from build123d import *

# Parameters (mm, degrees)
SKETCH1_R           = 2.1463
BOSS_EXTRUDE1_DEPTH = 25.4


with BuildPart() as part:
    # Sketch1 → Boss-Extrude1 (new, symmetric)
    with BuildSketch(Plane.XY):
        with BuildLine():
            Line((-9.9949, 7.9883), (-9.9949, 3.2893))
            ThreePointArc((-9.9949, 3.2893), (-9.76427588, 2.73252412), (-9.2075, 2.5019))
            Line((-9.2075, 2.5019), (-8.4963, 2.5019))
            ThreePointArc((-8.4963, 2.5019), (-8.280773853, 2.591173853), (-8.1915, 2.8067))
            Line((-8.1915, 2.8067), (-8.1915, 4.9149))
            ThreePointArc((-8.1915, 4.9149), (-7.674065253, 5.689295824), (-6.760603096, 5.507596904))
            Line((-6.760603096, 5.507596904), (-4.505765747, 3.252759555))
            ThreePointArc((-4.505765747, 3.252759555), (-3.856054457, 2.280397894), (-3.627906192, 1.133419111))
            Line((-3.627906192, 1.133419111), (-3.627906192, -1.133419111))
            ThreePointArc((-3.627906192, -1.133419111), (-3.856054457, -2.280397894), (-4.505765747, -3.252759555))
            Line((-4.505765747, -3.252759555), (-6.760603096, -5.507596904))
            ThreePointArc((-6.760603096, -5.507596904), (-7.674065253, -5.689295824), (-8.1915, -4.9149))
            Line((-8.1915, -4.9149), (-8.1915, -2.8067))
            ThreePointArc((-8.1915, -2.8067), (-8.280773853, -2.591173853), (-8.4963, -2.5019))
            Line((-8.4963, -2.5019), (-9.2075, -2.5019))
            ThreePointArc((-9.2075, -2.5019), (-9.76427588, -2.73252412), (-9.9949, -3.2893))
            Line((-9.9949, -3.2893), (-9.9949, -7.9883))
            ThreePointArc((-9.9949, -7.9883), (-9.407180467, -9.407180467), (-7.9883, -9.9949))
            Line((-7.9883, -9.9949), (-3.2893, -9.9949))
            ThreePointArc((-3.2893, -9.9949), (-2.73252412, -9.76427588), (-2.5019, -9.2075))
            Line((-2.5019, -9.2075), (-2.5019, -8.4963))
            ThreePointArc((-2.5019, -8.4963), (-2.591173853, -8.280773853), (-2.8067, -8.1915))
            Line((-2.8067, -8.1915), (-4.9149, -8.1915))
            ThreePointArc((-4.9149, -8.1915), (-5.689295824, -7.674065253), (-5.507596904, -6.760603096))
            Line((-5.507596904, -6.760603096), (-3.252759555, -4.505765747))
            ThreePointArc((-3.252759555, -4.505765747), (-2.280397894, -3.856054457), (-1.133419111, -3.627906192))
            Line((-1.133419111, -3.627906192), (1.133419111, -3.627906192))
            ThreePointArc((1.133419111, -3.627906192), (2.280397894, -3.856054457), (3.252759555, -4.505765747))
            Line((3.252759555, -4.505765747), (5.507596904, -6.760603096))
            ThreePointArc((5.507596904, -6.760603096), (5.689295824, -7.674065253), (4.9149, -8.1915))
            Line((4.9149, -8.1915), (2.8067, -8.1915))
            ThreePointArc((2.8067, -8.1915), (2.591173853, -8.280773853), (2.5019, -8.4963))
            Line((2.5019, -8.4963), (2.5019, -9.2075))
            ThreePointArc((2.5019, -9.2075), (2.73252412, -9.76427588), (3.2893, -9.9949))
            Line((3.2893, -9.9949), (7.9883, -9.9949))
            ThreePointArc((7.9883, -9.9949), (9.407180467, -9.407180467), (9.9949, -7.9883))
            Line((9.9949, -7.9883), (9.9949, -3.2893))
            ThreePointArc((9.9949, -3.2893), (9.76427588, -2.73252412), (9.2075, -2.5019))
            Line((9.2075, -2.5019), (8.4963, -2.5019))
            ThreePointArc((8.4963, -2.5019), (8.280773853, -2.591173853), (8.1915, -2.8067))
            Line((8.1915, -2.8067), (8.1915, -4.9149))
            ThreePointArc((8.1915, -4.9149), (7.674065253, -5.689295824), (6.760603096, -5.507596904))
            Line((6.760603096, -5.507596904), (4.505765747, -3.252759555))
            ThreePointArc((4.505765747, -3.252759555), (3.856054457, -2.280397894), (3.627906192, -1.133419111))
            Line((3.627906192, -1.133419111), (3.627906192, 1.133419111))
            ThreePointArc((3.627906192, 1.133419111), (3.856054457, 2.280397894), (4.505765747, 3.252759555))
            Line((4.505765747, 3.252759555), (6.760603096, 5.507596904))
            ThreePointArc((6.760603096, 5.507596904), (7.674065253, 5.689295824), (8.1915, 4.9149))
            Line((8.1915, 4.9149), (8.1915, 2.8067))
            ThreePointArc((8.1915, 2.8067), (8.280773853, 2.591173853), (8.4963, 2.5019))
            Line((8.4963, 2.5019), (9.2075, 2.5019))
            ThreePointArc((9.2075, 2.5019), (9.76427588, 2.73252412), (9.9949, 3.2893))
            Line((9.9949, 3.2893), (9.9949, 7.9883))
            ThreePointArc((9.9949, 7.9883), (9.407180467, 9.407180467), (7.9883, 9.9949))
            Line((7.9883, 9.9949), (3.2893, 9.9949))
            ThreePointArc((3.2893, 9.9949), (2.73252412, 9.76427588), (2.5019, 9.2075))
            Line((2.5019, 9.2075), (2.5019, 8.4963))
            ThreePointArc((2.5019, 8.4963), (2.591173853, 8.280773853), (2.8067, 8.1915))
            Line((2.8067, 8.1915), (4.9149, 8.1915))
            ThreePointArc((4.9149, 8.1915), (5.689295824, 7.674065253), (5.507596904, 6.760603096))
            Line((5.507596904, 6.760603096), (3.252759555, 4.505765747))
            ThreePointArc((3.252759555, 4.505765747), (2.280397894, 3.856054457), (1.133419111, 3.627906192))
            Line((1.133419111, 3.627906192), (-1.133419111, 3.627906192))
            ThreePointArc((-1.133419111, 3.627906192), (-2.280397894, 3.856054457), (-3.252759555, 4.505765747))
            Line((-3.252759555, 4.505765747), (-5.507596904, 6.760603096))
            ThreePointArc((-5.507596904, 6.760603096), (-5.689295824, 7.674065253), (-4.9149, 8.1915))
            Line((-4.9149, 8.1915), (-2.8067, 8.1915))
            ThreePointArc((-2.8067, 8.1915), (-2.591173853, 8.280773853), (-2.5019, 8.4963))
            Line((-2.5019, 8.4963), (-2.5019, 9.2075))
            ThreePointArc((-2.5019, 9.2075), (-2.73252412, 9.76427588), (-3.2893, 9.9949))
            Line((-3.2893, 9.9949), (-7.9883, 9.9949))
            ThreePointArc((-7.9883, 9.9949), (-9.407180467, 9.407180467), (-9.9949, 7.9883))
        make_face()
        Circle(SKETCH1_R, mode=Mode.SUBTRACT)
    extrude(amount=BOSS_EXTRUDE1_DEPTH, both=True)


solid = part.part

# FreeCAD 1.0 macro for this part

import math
import FreeCAD as App
import Part
import Sketcher
from FreeCAD import Vector
Q = App.Units.Quantity

doc = App.newDocument("Part")
body = doc.addObject("PartDesign::Body", "Body")

# Sketch on XY plane
sketch1 = body.newObject("Sketcher::SketchObject", "Sketch")
sketch1.AttachmentSupport = (doc.getObject("XY_Plane"), [""])
sketch1.MapMode = "FlatFace"
sketch1.addGeometry([
    Part.LineSegment(Vector(-9.99, 7.99, 0), Vector(-9.99, 3.29, 0)),  # 0
    Part.ArcOfCircle(Part.Circle(Vector(-9.21, 3.29, 0), Vector(0, 0, 1), 0.79), math.radians(180), math.radians(270)),  # 1
    Part.LineSegment(Vector(-9.21, 2.5, 0), Vector(-8.5, 2.5, 0)),  # 2
    Part.ArcOfCircle(Part.Circle(Vector(-8.5, 2.81, 0), Vector(0, 0, 1), 0.3), math.radians(-90), math.radians(0)),  # 3
    Part.LineSegment(Vector(-8.19, 2.81, 0), Vector(-8.19, 4.91, 0)),  # 4
    Part.ArcOfCircle(Part.Circle(Vector(-7.35, 4.91, 0), Vector(0, 0, 1), 0.84), math.radians(45), math.radians(180)),  # 5
    Part.LineSegment(Vector(-6.76, 5.51, 0), Vector(-4.51, 3.25, 0)),  # 6
    Part.ArcOfCircle(Part.Circle(Vector(-6.63, 1.13, 0), Vector(0, 0, 1), 3), math.radians(0), math.radians(45)),  # 7
    Part.LineSegment(Vector(-3.63, 1.13, 0), Vector(-3.63, -1.13, 0)),  # 8
    Part.ArcOfCircle(Part.Circle(Vector(-6.63, -1.13, 0), Vector(0, 0, 1), 3), math.radians(-45), math.radians(0)),  # 9
    Part.LineSegment(Vector(-4.51, -3.25, 0), Vector(-6.76, -5.51, 0)),  # 10
    Part.ArcOfCircle(Part.Circle(Vector(-7.35, -4.91, 0), Vector(0, 0, 1), 0.84), math.radians(180), math.radians(315)),  # 11
    Part.LineSegment(Vector(-8.19, -4.91, 0), Vector(-8.19, -2.81, 0)),  # 12
    Part.ArcOfCircle(Part.Circle(Vector(-8.5, -2.81, 0), Vector(0, 0, 1), 0.3), math.radians(0), math.radians(90)),  # 13
    Part.LineSegment(Vector(-8.5, -2.5, 0), Vector(-9.21, -2.5, 0)),  # 14
    Part.ArcOfCircle(Part.Circle(Vector(-9.21, -3.29, 0), Vector(0, 0, 1), 0.79), math.radians(90), math.radians(180)),  # 15
    Part.LineSegment(Vector(-9.99, -3.29, 0), Vector(-9.99, -7.99, 0)),  # 16
    Part.ArcOfCircle(Part.Circle(Vector(-7.99, -7.99, 0), Vector(0, 0, 1), 2.01), math.radians(180), math.radians(270)),  # 17
    Part.LineSegment(Vector(-7.99, -9.99, 0), Vector(-3.29, -9.99, 0)),  # 18
    Part.ArcOfCircle(Part.Circle(Vector(-3.29, -9.21, 0), Vector(0, 0, 1), 0.79), math.radians(-90), math.radians(0)),  # 19
    Part.LineSegment(Vector(-2.5, -9.21, 0), Vector(-2.5, -8.5, 0)),  # 20
    Part.ArcOfCircle(Part.Circle(Vector(-2.81, -8.5, 0), Vector(0, 0, 1), 0.3), math.radians(0), math.radians(90)),  # 21
    Part.LineSegment(Vector(-2.81, -8.19, 0), Vector(-4.91, -8.19, 0)),  # 22
    Part.ArcOfCircle(Part.Circle(Vector(-4.91, -7.35, 0), Vector(0, 0, 1), 0.84), math.radians(135), math.radians(270)),  # 23
    Part.LineSegment(Vector(-5.51, -6.76, 0), Vector(-3.25, -4.51, 0)),  # 24
    Part.ArcOfCircle(Part.Circle(Vector(-1.13, -6.63, 0), Vector(0, 0, 1), 3), math.radians(90), math.radians(135)),  # 25
    Part.LineSegment(Vector(-1.13, -3.63, 0), Vector(1.13, -3.63, 0)),  # 26
    Part.ArcOfCircle(Part.Circle(Vector(1.13, -6.63, 0), Vector(0, 0, 1), 3), math.radians(45), math.radians(90)),  # 27
    Part.LineSegment(Vector(3.25, -4.51, 0), Vector(5.51, -6.76, 0)),  # 28
    Part.ArcOfCircle(Part.Circle(Vector(4.91, -7.35, 0), Vector(0, 0, 1), 0.84), math.radians(-90), math.radians(45)),  # 29
    Part.LineSegment(Vector(4.91, -8.19, 0), Vector(2.81, -8.19, 0)),  # 30
    Part.ArcOfCircle(Part.Circle(Vector(2.81, -8.5, 0), Vector(0, 0, 1), 0.3), math.radians(90), math.radians(180)),  # 31
    Part.LineSegment(Vector(2.5, -8.5, 0), Vector(2.5, -9.21, 0)),  # 32
    Part.ArcOfCircle(Part.Circle(Vector(3.29, -9.21, 0), Vector(0, 0, 1), 0.79), math.radians(180), math.radians(270)),  # 33
    Part.LineSegment(Vector(3.29, -9.99, 0), Vector(7.99, -9.99, 0)),  # 34
    Part.ArcOfCircle(Part.Circle(Vector(7.99, -7.99, 0), Vector(0, 0, 1), 2.01), math.radians(-90), math.radians(0)),  # 35
    Part.LineSegment(Vector(9.99, -7.99, 0), Vector(9.99, -3.29, 0)),  # 36
    Part.ArcOfCircle(Part.Circle(Vector(9.21, -3.29, 0), Vector(0, 0, 1), 0.79), math.radians(0), math.radians(90)),  # 37
    Part.LineSegment(Vector(9.21, -2.5, 0), Vector(8.5, -2.5, 0)),  # 38
    Part.ArcOfCircle(Part.Circle(Vector(8.5, -2.81, 0), Vector(0, 0, 1), 0.3), math.radians(90), math.radians(180)),  # 39
    Part.LineSegment(Vector(8.19, -2.81, 0), Vector(8.19, -4.91, 0)),  # 40
    Part.ArcOfCircle(Part.Circle(Vector(7.35, -4.91, 0), Vector(0, 0, 1), 0.84), math.radians(-135), math.radians(0)),  # 41
    Part.LineSegment(Vector(6.76, -5.51, 0), Vector(4.51, -3.25, 0)),  # 42
    Part.ArcOfCircle(Part.Circle(Vector(6.63, -1.13, 0), Vector(0, 0, 1), 3), math.radians(180), math.radians(225)),  # 43
    Part.LineSegment(Vector(3.63, -1.13, 0), Vector(3.63, 1.13, 0)),  # 44
    Part.ArcOfCircle(Part.Circle(Vector(6.63, 1.13, 0), Vector(0, 0, 1), 3), math.radians(135), math.radians(180)),  # 45
    Part.LineSegment(Vector(4.51, 3.25, 0), Vector(6.76, 5.51, 0)),  # 46
    Part.ArcOfCircle(Part.Circle(Vector(7.35, 4.91, 0), Vector(0, 0, 1), 0.84), math.radians(0), math.radians(135)),  # 47
    Part.LineSegment(Vector(8.19, 4.91, 0), Vector(8.19, 2.81, 0)),  # 48
    Part.ArcOfCircle(Part.Circle(Vector(8.5, 2.81, 0), Vector(0, 0, 1), 0.3), math.radians(180), math.radians(270)),  # 49
    Part.LineSegment(Vector(8.5, 2.5, 0), Vector(9.21, 2.5, 0)),  # 50
    Part.ArcOfCircle(Part.Circle(Vector(9.21, 3.29, 0), Vector(0, 0, 1), 0.79), math.radians(-90), math.radians(0)),  # 51
    Part.LineSegment(Vector(9.99, 3.29, 0), Vector(9.99, 7.99, 0)),  # 52
    Part.ArcOfCircle(Part.Circle(Vector(7.99, 7.99, 0), Vector(0, 0, 1), 2.01), math.radians(0), math.radians(90)),  # 53
    Part.LineSegment(Vector(7.99, 9.99, 0), Vector(3.29, 9.99, 0)),  # 54
    Part.ArcOfCircle(Part.Circle(Vector(3.29, 9.21, 0), Vector(0, 0, 1), 0.79), math.radians(90), math.radians(180)),  # 55
    Part.LineSegment(Vector(2.5, 9.21, 0), Vector(2.5, 8.5, 0)),  # 56
    Part.ArcOfCircle(Part.Circle(Vector(2.81, 8.5, 0), Vector(0, 0, 1), 0.3), math.radians(180), math.radians(270)),  # 57
    Part.LineSegment(Vector(2.81, 8.19, 0), Vector(4.91, 8.19, 0)),  # 58
    Part.ArcOfCircle(Part.Circle(Vector(4.91, 7.35, 0), Vector(0, 0, 1), 0.84), math.radians(-45), math.radians(90)),  # 59
    Part.LineSegment(Vector(5.51, 6.76, 0), Vector(3.25, 4.51, 0)),  # 60
    Part.ArcOfCircle(Part.Circle(Vector(1.13, 6.63, 0), Vector(0, 0, 1), 3), math.radians(-90), math.radians(-45)),  # 61
    Part.LineSegment(Vector(1.13, 3.63, 0), Vector(-1.13, 3.63, 0)),  # 62
    Part.ArcOfCircle(Part.Circle(Vector(-1.13, 6.63, 0), Vector(0, 0, 1), 3), math.radians(-135), math.radians(-90)),  # 63
    Part.LineSegment(Vector(-3.25, 4.51, 0), Vector(-5.51, 6.76, 0)),  # 64
    Part.ArcOfCircle(Part.Circle(Vector(-4.91, 7.35, 0), Vector(0, 0, 1), 0.84), math.radians(90), math.radians(225)),  # 65
    Part.LineSegment(Vector(-4.91, 8.19, 0), Vector(-2.81, 8.19, 0)),  # 66
    Part.ArcOfCircle(Part.Circle(Vector(-2.81, 8.5, 0), Vector(0, 0, 1), 0.3), math.radians(-90), math.radians(0)),  # 67
    Part.LineSegment(Vector(-2.5, 8.5, 0), Vector(-2.5, 9.21, 0)),  # 68
    Part.ArcOfCircle(Part.Circle(Vector(-3.29, 9.21, 0), Vector(0, 0, 1), 0.79), math.radians(0), math.radians(90)),  # 69
    Part.LineSegment(Vector(-3.29, 9.99, 0), Vector(-7.99, 9.99, 0)),  # 70
    Part.ArcOfCircle(Part.Circle(Vector(-7.99, 7.99, 0), Vector(0, 0, 1), 2.01), math.radians(90), math.radians(180)),  # 71
    Part.Circle(Vector(0, 0, 0), Vector(0, 0, 1), 2.15),  # 72
], False)
sketch1.addConstraint([
    Sketcher.Constraint("Tangent", 0, 2, 1, 1),
    Sketcher.Constraint("Tangent", 1, 2, 2, 1),
    Sketcher.Constraint("Tangent", 2, 2, 3, 1),
    Sketcher.Constraint("Tangent", 3, 2, 4, 1),
    Sketcher.Constraint("Tangent", 4, 2, 5, 2),
    Sketcher.Constraint("Tangent", 5, 1, 6, 1),
    Sketcher.Constraint("Tangent", 6, 2, 7, 2),
    Sketcher.Constraint("Tangent", 7, 1, 8, 1),
    Sketcher.Constraint("Tangent", 8, 2, 9, 2),
    Sketcher.Constraint("Tangent", 9, 1, 10, 1),
    Sketcher.Constraint("Tangent", 10, 2, 11, 2),
    Sketcher.Constraint("Tangent", 11, 1, 12, 1),
    Sketcher.Constraint("Tangent", 12, 2, 13, 1),
    Sketcher.Constraint("Tangent", 13, 2, 14, 1),
    Sketcher.Constraint("Tangent", 14, 2, 15, 1),
    Sketcher.Constraint("Tangent", 15, 2, 16, 1),
    Sketcher.Constraint("Tangent", 16, 2, 17, 1),
    Sketcher.Constraint("Tangent", 17, 2, 18, 1),
    Sketcher.Constraint("Tangent", 18, 2, 19, 1),
    Sketcher.Constraint("Tangent", 19, 2, 20, 1),
    Sketcher.Constraint("Tangent", 20, 2, 21, 1),
    Sketcher.Constraint("Tangent", 21, 2, 22, 1),
    Sketcher.Constraint("Tangent", 22, 2, 23, 2),
    Sketcher.Constraint("Tangent", 23, 1, 24, 1),
    Sketcher.Constraint("Tangent", 24, 2, 25, 2),
    Sketcher.Constraint("Tangent", 25, 1, 26, 1),
    Sketcher.Constraint("Tangent", 26, 2, 27, 2),
    Sketcher.Constraint("Tangent", 27, 1, 28, 1),
    Sketcher.Constraint("Tangent", 28, 2, 29, 2),
    Sketcher.Constraint("Tangent", 29, 1, 30, 1),
    Sketcher.Constraint("Tangent", 30, 2, 31, 1),
    Sketcher.Constraint("Tangent", 31, 2, 32, 1),
    Sketcher.Constraint("Tangent", 32, 2, 33, 1),
    Sketcher.Constraint("Tangent", 33, 2, 34, 1),
    Sketcher.Constraint("Tangent", 34, 2, 35, 1),
    Sketcher.Constraint("Tangent", 35, 2, 36, 1),
    Sketcher.Constraint("Tangent", 36, 2, 37, 1),
    Sketcher.Constraint("Tangent", 37, 2, 38, 1),
    Sketcher.Constraint("Tangent", 38, 2, 39, 1),
    Sketcher.Constraint("Tangent", 39, 2, 40, 1),
    Sketcher.Constraint("Tangent", 40, 2, 41, 2),
    Sketcher.Constraint("Tangent", 41, 1, 42, 1),
    Sketcher.Constraint("Tangent", 42, 2, 43, 2),
    Sketcher.Constraint("Tangent", 43, 1, 44, 1),
    Sketcher.Constraint("Tangent", 44, 2, 45, 2),
    Sketcher.Constraint("Tangent", 45, 1, 46, 1),
    Sketcher.Constraint("Tangent", 46, 2, 47, 2),
    Sketcher.Constraint("Tangent", 47, 1, 48, 1),
    Sketcher.Constraint("Tangent", 48, 2, 49, 1),
    Sketcher.Constraint("Tangent", 49, 2, 50, 1),
    Sketcher.Constraint("Tangent", 50, 2, 51, 1),
    Sketcher.Constraint("Tangent", 51, 2, 52, 1),
    Sketcher.Constraint("Tangent", 52, 2, 53, 1),
    Sketcher.Constraint("Tangent", 53, 2, 54, 1),
    Sketcher.Constraint("Tangent", 54, 2, 55, 1),
    Sketcher.Constraint("Tangent", 55, 2, 56, 1),
    Sketcher.Constraint("Tangent", 56, 2, 57, 1),
    Sketcher.Constraint("Tangent", 57, 2, 58, 1),
    Sketcher.Constraint("Tangent", 58, 2, 59, 2),
    Sketcher.Constraint("Tangent", 59, 1, 60, 1),
    Sketcher.Constraint("Tangent", 60, 2, 61, 2),
    Sketcher.Constraint("Tangent", 61, 1, 62, 1),
    Sketcher.Constraint("Tangent", 62, 2, 63, 2),
    Sketcher.Constraint("Tangent", 63, 1, 64, 1),
    Sketcher.Constraint("Tangent", 64, 2, 65, 2),
    Sketcher.Constraint("Tangent", 65, 1, 66, 1),
    Sketcher.Constraint("Tangent", 66, 2, 67, 1),
    Sketcher.Constraint("Tangent", 67, 2, 68, 1),
    Sketcher.Constraint("Tangent", 68, 2, 69, 1),
    Sketcher.Constraint("Tangent", 69, 2, 70, 1),
    Sketcher.Constraint("Tangent", 70, 2, 71, 1),
    Sketcher.Constraint("Tangent", 71, 2, 0, 1),
    Sketcher.Constraint("Vertical", 0),
    Sketcher.Constraint("Horizontal", 2),
    Sketcher.Constraint("Vertical", 4),
    Sketcher.Constraint("Vertical", 8),
    Sketcher.Constraint("Vertical", 12),
    Sketcher.Constraint("Horizontal", 14),
    Sketcher.Constraint("Vertical", 16),
    Sketcher.Constraint("Horizontal", 18),
    Sketcher.Constraint("Vertical", 20),
    Sketcher.Constraint("Horizontal", 22),
    Sketcher.Constraint("Horizontal", 26),
    Sketcher.Constraint("Horizontal", 30),
    Sketcher.Constraint("Vertical", 32),
    Sketcher.Constraint("Horizontal", 34),
    Sketcher.Constraint("Vertical", 36),
    Sketcher.Constraint("Horizontal", 38),
    Sketcher.Constraint("Vertical", 40),
    Sketcher.Constraint("Vertical", 44),
    Sketcher.Constraint("Vertical", 48),
    Sketcher.Constraint("Horizontal", 50),
    Sketcher.Constraint("Vertical", 52),
    Sketcher.Constraint("Horizontal", 54),
    Sketcher.Constraint("Vertical", 56),
    Sketcher.Constraint("Horizontal", 58),
    Sketcher.Constraint("Horizontal", 62),
    Sketcher.Constraint("Horizontal", 66),
    Sketcher.Constraint("Vertical", 68),
    Sketcher.Constraint("Horizontal", 70),
    Sketcher.Constraint("Coincident", 72, 3, -1, 1),
    Sketcher.Constraint("Equal", 7, 9),
    Sketcher.Constraint("Equal", 5, 11),
    Sketcher.Constraint("Equal", 3, 13),
    Sketcher.Constraint("Equal", 1, 15),
    Sketcher.Constraint("Equal", 15, 19),
    Sketcher.Constraint("Equal", 13, 21),
    Sketcher.Constraint("Equal", 11, 23),
    Sketcher.Constraint("Equal", 9, 25),
    Sketcher.Constraint("Equal", 25, 27),
    Sketcher.Constraint("Equal", 23, 29),
    Sketcher.Constraint("Equal", 21, 31),
    Sketcher.Constraint("Equal", 19, 33),
    Sketcher.Constraint("Equal", 17, 35),
    Sketcher.Constraint("Equal", 33, 37),
    Sketcher.Constraint("Equal", 31, 39),
    Sketcher.Constraint("Equal", 29, 41),
    Sketcher.Constraint("Equal", 27, 43),
    Sketcher.Constraint("Equal", 43, 45),
    Sketcher.Constraint("Equal", 41, 47),
    Sketcher.Constraint("Equal", 39, 49),
    Sketcher.Constraint("Equal", 37, 51),
    Sketcher.Constraint("Equal", 35, 53),
    Sketcher.Constraint("Equal", 51, 55),
    Sketcher.Constraint("Equal", 49, 57),
    Sketcher.Constraint("Equal", 47, 59),
    Sketcher.Constraint("Equal", 45, 61),
    Sketcher.Constraint("Equal", 61, 63),
    Sketcher.Constraint("Equal", 59, 65),
    Sketcher.Constraint("Equal", 57, 67),
    Sketcher.Constraint("Equal", 55, 69),
    Sketcher.Constraint("Equal", 53, 71),
    Sketcher.Constraint("Symmetric", 1, 3, 37, 3, -1, 1),
    Sketcher.Constraint("Symmetric", 5, 3, 41, 3, -1, 1),
    Sketcher.Constraint("Symmetric", 7, 3, 43, 3, -1, 1),
    Sketcher.Constraint("Symmetric", 11, 3, 47, 3, -1, 1),
    Sketcher.Constraint("Symmetric", 15, 3, 51, 3, -1, 1),
    Sketcher.Constraint("Symmetric", 19, 3, 55, 3, -1, 1),
    Sketcher.Constraint("Symmetric", 23, 3, 59, 3, -1, 1),
    Sketcher.Constraint("Symmetric", 25, 3, 61, 3, -1, 1),
    Sketcher.Constraint("Symmetric", 29, 3, 65, 3, -1, 1),
    Sketcher.Constraint("Symmetric", 33, 3, 69, 3, -1, 1),
    Sketcher.Constraint("Symmetric", 23, 3, 29, 3, -2),
    Sketcher.Constraint("Symmetric", 19, 3, 33, 3, -2),
    Sketcher.Constraint("Symmetric", 15, 3, 37, 3, -2),
    Sketcher.Constraint("Symmetric", 11, 3, 41, 3, -2),
    Sketcher.Constraint("Perpendicular", 6, 10),
    Sketcher.Constraint("Parallel", 10, 24),
    Sketcher.Constraint("Perpendicular", 24, 28),
    Sketcher.Constraint("Perpendicular", 42, 46),
    Sketcher.Constraint("Perpendicular", 60, 64),
    Sketcher.Constraint("Horizontal", 9, 3, 43, 3),
    Sketcher.Constraint("Equal", 70, 0),
    Sketcher.Constraint("Equal", 66, 4),
    Sketcher.Constraint("Equal", 62, 8),
    Sketcher.Constraint("Equal", 50, 20),
    Sketcher.Constraint("Equal", 10, 24),
    Sketcher.Constraint("Diameter", 72, Q("0.169 in")),
    Sketcher.Constraint("Radius", 1, Q("0.031 in")),
    Sketcher.Constraint("Radius", 3, Q("0.012 in")),
    Sketcher.Constraint("Radius", 5, Q("0.033 in")),
    Sketcher.Constraint("Radius", 7, Q("0.118 in")),
    Sketcher.Constraint("Radius", 17, Q("0.079 in")),
    Sketcher.Constraint("DistanceX", 2, 1, 2, 2, Q("0.028 in")),
    Sketcher.Constraint("DistanceX", 18, 1, 18, 2, Q("0.185 in")),
    Sketcher.Constraint("DistanceX", 22, 2, 22, 1, Q("0.083 in")),
    Sketcher.Constraint("DistanceX", 1, 3, -1, 1, Q("0.3625 in")),
    Sketcher.Constraint("DistanceX", 26, 1, 26, 2, Q("2.266838 mm")),
])
pad1 = body.newObject("PartDesign::Pad", "Pad")
pad1.Profile = sketch1
pad1.Length = Q("2 in")
pad1.Midplane = True

doc.recompute()
